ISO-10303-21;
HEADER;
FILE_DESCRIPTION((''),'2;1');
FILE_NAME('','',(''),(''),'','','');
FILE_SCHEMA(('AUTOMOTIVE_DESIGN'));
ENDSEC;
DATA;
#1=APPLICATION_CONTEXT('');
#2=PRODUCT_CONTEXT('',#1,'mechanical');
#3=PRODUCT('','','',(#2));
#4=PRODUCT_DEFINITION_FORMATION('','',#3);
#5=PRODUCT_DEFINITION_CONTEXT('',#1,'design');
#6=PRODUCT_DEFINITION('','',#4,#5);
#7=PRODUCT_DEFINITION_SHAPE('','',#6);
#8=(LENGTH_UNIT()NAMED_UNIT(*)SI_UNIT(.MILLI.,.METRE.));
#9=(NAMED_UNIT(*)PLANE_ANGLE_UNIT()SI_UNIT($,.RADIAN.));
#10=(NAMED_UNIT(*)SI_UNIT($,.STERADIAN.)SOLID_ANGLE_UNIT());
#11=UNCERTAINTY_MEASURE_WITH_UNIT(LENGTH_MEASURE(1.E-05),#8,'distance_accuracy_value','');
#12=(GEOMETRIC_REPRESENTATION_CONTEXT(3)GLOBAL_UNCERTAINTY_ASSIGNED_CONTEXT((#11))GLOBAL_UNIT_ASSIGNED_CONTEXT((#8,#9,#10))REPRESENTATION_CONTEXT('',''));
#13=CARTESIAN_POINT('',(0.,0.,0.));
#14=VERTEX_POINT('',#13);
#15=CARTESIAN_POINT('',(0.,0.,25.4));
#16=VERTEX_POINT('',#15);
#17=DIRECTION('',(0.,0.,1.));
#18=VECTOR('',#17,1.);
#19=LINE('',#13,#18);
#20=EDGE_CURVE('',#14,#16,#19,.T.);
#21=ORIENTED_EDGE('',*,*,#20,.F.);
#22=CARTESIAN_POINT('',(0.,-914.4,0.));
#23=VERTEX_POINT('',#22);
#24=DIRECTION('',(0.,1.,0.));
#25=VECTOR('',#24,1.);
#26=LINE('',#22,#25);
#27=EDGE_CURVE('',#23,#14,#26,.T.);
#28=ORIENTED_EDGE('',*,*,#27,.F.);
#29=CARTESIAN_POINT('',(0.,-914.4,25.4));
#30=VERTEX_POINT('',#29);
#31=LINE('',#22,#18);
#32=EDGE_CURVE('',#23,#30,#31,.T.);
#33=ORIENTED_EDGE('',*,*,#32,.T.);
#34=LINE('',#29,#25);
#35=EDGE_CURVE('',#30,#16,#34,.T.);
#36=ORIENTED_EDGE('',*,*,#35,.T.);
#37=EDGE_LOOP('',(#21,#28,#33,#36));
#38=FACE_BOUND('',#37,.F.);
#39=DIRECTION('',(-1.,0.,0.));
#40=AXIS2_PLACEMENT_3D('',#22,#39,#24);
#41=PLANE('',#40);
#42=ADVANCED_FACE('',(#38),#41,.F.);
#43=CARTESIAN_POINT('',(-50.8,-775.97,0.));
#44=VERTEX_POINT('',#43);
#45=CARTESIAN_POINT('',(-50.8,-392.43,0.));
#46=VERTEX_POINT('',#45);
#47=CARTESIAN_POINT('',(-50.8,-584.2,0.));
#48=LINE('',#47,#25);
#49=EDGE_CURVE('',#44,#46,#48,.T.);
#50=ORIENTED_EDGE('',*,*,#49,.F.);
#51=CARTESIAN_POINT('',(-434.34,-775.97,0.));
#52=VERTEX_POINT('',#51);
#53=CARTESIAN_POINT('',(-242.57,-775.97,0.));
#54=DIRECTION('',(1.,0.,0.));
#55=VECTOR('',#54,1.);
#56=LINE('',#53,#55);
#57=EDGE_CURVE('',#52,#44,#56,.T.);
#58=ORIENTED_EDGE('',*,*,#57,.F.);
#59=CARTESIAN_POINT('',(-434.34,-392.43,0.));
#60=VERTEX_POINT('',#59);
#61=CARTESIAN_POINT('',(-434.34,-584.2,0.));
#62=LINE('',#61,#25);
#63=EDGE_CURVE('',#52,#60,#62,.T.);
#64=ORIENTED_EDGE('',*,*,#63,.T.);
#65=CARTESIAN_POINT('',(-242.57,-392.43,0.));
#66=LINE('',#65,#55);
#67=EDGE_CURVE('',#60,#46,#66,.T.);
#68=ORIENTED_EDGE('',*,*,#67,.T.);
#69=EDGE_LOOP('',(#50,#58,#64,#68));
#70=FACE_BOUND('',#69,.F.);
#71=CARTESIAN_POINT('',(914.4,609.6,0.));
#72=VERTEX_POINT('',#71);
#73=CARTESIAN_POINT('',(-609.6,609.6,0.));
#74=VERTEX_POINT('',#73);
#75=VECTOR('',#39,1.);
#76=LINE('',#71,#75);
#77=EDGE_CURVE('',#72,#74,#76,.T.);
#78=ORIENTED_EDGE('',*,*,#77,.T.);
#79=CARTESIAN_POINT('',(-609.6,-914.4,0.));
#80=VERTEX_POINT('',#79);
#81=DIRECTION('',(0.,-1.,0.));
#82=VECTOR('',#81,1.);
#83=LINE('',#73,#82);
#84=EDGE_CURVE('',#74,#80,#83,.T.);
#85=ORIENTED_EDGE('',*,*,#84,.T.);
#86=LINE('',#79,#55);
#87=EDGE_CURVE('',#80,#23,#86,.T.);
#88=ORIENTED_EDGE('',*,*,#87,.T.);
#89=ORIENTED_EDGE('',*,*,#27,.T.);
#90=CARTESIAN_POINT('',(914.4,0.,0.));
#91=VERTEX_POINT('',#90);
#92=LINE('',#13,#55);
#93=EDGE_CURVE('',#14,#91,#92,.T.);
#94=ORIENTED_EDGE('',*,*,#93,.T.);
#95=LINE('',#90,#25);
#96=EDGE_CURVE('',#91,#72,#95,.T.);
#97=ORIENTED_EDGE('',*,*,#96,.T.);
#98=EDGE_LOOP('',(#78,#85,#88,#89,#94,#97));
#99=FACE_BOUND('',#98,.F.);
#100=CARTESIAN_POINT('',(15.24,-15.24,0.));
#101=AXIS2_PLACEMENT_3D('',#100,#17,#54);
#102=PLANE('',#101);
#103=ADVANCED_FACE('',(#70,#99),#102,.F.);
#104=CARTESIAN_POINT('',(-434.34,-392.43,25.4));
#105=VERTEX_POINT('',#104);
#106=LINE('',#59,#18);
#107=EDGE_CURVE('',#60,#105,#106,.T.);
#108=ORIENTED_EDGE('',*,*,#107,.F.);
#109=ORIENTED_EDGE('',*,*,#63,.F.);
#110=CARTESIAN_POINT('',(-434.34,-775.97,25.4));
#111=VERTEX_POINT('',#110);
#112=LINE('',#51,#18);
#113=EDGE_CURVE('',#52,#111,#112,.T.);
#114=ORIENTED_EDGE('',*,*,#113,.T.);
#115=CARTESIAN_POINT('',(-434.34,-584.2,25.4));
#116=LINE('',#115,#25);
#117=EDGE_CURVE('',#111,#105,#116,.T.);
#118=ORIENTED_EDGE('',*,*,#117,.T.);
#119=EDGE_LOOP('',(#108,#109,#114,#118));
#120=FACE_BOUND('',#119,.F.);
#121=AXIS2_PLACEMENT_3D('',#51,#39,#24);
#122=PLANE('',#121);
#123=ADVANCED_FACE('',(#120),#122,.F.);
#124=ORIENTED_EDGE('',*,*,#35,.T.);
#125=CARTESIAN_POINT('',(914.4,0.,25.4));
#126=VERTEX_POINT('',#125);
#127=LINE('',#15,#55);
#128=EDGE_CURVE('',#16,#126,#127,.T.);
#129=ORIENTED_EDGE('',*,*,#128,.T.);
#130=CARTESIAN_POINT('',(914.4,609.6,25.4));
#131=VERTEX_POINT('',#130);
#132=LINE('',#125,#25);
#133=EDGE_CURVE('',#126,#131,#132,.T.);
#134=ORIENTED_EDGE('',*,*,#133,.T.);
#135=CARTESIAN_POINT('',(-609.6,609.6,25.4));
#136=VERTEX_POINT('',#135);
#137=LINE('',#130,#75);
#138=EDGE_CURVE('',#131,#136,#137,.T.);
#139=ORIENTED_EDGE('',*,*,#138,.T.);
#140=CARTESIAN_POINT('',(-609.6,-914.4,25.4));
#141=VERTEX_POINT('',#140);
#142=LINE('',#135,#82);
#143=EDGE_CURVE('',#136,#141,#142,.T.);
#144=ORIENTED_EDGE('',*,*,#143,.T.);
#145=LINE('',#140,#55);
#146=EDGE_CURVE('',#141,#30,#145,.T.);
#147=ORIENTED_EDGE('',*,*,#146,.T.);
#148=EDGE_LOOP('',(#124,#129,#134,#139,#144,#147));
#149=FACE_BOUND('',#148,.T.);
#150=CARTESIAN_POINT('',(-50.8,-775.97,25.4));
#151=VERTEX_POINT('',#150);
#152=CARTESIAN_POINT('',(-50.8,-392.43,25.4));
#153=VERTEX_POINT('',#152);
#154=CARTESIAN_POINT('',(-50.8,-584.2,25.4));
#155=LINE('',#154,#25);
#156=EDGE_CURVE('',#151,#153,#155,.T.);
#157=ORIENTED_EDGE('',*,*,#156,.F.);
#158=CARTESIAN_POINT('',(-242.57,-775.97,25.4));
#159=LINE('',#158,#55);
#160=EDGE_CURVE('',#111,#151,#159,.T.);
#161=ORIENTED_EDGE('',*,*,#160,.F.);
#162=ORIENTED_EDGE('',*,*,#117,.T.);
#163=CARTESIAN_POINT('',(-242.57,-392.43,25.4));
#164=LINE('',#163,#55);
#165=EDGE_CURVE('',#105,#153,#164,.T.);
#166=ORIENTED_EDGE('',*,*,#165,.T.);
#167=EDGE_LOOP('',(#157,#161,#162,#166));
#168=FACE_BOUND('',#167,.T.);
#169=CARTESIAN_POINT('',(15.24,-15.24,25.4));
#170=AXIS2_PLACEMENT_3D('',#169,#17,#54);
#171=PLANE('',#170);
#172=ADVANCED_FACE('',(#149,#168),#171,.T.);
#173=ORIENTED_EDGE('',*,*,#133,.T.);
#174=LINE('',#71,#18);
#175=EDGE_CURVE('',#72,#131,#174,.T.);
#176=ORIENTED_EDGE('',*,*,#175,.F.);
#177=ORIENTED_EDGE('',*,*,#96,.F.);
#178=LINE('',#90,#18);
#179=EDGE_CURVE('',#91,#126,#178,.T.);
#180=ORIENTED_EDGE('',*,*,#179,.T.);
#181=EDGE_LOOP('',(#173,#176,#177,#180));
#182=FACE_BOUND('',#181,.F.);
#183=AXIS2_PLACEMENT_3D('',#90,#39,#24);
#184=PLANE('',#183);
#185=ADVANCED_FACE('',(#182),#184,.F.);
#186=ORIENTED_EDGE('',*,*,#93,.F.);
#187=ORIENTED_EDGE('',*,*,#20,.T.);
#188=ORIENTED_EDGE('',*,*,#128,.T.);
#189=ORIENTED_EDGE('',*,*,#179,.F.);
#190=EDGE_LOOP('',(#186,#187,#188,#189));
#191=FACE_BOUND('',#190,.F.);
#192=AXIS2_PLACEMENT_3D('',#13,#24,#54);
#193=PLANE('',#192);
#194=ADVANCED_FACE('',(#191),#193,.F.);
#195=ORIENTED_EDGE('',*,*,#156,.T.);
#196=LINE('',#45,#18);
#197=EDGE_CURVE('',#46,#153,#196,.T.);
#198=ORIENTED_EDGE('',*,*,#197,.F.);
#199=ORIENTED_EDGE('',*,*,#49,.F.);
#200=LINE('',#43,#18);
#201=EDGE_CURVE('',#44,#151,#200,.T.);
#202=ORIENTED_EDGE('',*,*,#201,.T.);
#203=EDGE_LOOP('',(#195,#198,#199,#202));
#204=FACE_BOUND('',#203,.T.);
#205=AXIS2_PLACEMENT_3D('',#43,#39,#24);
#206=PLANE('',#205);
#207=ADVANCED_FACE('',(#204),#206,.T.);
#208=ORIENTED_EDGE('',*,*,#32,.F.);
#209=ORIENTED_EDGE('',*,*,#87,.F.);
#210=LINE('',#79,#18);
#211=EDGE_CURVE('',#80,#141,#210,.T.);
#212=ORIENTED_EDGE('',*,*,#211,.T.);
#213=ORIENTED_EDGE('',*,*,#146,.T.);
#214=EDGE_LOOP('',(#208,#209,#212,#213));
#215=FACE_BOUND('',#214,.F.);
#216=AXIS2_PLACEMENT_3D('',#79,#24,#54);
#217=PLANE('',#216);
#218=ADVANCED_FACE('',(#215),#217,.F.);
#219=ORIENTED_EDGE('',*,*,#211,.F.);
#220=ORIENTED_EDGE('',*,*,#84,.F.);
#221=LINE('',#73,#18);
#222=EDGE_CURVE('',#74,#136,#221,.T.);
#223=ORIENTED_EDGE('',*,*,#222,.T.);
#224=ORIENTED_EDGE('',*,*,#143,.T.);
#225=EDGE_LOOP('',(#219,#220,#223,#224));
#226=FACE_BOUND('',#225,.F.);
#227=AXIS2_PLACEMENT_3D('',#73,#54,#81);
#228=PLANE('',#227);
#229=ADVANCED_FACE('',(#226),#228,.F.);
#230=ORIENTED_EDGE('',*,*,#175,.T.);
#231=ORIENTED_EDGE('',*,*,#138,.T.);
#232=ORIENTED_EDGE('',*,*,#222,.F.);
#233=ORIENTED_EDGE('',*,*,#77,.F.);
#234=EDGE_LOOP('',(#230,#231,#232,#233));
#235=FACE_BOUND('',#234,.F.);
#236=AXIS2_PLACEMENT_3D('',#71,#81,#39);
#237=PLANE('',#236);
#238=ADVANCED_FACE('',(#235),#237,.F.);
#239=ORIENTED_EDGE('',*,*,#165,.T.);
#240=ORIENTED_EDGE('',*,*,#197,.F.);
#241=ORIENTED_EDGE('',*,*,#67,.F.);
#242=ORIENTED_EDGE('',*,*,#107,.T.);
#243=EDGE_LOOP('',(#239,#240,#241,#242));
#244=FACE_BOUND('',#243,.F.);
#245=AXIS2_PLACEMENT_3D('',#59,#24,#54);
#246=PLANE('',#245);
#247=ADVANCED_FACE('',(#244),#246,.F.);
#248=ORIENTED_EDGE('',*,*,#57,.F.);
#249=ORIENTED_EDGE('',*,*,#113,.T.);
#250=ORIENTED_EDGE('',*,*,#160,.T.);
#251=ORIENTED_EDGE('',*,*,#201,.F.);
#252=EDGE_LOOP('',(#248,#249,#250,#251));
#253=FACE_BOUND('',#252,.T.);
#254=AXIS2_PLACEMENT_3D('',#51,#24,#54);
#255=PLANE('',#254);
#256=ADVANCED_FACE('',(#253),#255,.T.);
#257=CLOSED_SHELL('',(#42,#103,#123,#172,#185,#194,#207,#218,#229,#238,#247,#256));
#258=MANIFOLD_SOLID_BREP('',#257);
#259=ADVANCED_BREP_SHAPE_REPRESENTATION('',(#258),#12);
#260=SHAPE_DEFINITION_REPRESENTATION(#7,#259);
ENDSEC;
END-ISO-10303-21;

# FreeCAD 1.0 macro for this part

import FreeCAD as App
import Part
import Sketcher
Q = App.Units.Quantity


def add_polygon(sketch, points):
    """Adds a closed chain of lines whose ends are joined by coincident constraints."""
    first, n = sketch.GeometryCount, len(points)
    for a, b in zip(points, points[1:] + points[:1]):
        sketch.addGeometry(Part.LineSegment(App.Vector(*a, 0), App.Vector(*b, 0)), False)
    for i in range(n):
        sketch.addConstraint(Sketcher.Constraint("Coincident", first + i, 2, first + (i + 1) % n, 1))

doc = App.newDocument("Part")
body = doc.addObject("PartDesign::Body", "Body")

# Sketch on XY plane
sketch1 = body.newObject("Sketcher::SketchObject", "Sketch")
sketch1.AttachmentSupport = (doc.getObject("XY_Plane"), [""])
sketch1.MapMode = "FlatFace"
add_polygon(sketch1, [(914, 610), (-610, 610), (-610, -914), (0, -914), (0, 0), (914, 0)])  # lines 0-5
add_polygon(sketch1, [(-51, -776), (-434, -776), (-434, -392), (-51, -392)])  # lines 6-9
sketch1.addConstraint(Sketcher.Constraint("Horizontal", 0))
sketch1.addConstraint(Sketcher.Constraint("Vertical", 1))
sketch1.addConstraint(Sketcher.Constraint("Horizontal", 2))
sketch1.addConstraint(Sketcher.Constraint("Vertical", 3))
sketch1.addConstraint(Sketcher.Constraint("Horizontal", 4))
sketch1.addConstraint(Sketcher.Constraint("Vertical", 5))
sketch1.addConstraint(Sketcher.Constraint("Horizontal", 6))
sketch1.addConstraint(Sketcher.Constraint("Vertical", 7))
sketch1.addConstraint(Sketcher.Constraint("Horizontal", 8))
sketch1.addConstraint(Sketcher.Constraint("Vertical", 9))
sketch1.addConstraint(Sketcher.Constraint("Coincident", 3, 2, -1, 1))
sketch1.addConstraint(Sketcher.Constraint("Equal", 0, 1))
sketch1.addConstraint(Sketcher.Constraint("Equal", 4, 3))
sketch1.addConstraint(Sketcher.Constraint("Equal", 8, 7))
sketch1.addConstraint(Sketcher.Constraint("DistanceX", 0, 2, 0, 1, Q("60 in")))
sketch1.addConstraint(Sketcher.Constraint("DistanceX", 2, 1, 2, 2, Q("24 in")))
sketch1.addConstraint(Sketcher.Constraint("DistanceX", 6, 2, 6, 1, Q("15.1 in")))
sketch1.addConstraint(Sketcher.Constraint("DistanceX", 8, 2, -1, 1, Q("2 in")))
sketch1.addConstraint(Sketcher.Constraint("DistanceY", 6, 2, -1, 1, Q("30.55 in")))
pad1 = body.newObject("PartDesign::Pad", "Pad")
pad1.Profile = sketch1
pad1.Length = Q("1 in")

doc.recompute()
